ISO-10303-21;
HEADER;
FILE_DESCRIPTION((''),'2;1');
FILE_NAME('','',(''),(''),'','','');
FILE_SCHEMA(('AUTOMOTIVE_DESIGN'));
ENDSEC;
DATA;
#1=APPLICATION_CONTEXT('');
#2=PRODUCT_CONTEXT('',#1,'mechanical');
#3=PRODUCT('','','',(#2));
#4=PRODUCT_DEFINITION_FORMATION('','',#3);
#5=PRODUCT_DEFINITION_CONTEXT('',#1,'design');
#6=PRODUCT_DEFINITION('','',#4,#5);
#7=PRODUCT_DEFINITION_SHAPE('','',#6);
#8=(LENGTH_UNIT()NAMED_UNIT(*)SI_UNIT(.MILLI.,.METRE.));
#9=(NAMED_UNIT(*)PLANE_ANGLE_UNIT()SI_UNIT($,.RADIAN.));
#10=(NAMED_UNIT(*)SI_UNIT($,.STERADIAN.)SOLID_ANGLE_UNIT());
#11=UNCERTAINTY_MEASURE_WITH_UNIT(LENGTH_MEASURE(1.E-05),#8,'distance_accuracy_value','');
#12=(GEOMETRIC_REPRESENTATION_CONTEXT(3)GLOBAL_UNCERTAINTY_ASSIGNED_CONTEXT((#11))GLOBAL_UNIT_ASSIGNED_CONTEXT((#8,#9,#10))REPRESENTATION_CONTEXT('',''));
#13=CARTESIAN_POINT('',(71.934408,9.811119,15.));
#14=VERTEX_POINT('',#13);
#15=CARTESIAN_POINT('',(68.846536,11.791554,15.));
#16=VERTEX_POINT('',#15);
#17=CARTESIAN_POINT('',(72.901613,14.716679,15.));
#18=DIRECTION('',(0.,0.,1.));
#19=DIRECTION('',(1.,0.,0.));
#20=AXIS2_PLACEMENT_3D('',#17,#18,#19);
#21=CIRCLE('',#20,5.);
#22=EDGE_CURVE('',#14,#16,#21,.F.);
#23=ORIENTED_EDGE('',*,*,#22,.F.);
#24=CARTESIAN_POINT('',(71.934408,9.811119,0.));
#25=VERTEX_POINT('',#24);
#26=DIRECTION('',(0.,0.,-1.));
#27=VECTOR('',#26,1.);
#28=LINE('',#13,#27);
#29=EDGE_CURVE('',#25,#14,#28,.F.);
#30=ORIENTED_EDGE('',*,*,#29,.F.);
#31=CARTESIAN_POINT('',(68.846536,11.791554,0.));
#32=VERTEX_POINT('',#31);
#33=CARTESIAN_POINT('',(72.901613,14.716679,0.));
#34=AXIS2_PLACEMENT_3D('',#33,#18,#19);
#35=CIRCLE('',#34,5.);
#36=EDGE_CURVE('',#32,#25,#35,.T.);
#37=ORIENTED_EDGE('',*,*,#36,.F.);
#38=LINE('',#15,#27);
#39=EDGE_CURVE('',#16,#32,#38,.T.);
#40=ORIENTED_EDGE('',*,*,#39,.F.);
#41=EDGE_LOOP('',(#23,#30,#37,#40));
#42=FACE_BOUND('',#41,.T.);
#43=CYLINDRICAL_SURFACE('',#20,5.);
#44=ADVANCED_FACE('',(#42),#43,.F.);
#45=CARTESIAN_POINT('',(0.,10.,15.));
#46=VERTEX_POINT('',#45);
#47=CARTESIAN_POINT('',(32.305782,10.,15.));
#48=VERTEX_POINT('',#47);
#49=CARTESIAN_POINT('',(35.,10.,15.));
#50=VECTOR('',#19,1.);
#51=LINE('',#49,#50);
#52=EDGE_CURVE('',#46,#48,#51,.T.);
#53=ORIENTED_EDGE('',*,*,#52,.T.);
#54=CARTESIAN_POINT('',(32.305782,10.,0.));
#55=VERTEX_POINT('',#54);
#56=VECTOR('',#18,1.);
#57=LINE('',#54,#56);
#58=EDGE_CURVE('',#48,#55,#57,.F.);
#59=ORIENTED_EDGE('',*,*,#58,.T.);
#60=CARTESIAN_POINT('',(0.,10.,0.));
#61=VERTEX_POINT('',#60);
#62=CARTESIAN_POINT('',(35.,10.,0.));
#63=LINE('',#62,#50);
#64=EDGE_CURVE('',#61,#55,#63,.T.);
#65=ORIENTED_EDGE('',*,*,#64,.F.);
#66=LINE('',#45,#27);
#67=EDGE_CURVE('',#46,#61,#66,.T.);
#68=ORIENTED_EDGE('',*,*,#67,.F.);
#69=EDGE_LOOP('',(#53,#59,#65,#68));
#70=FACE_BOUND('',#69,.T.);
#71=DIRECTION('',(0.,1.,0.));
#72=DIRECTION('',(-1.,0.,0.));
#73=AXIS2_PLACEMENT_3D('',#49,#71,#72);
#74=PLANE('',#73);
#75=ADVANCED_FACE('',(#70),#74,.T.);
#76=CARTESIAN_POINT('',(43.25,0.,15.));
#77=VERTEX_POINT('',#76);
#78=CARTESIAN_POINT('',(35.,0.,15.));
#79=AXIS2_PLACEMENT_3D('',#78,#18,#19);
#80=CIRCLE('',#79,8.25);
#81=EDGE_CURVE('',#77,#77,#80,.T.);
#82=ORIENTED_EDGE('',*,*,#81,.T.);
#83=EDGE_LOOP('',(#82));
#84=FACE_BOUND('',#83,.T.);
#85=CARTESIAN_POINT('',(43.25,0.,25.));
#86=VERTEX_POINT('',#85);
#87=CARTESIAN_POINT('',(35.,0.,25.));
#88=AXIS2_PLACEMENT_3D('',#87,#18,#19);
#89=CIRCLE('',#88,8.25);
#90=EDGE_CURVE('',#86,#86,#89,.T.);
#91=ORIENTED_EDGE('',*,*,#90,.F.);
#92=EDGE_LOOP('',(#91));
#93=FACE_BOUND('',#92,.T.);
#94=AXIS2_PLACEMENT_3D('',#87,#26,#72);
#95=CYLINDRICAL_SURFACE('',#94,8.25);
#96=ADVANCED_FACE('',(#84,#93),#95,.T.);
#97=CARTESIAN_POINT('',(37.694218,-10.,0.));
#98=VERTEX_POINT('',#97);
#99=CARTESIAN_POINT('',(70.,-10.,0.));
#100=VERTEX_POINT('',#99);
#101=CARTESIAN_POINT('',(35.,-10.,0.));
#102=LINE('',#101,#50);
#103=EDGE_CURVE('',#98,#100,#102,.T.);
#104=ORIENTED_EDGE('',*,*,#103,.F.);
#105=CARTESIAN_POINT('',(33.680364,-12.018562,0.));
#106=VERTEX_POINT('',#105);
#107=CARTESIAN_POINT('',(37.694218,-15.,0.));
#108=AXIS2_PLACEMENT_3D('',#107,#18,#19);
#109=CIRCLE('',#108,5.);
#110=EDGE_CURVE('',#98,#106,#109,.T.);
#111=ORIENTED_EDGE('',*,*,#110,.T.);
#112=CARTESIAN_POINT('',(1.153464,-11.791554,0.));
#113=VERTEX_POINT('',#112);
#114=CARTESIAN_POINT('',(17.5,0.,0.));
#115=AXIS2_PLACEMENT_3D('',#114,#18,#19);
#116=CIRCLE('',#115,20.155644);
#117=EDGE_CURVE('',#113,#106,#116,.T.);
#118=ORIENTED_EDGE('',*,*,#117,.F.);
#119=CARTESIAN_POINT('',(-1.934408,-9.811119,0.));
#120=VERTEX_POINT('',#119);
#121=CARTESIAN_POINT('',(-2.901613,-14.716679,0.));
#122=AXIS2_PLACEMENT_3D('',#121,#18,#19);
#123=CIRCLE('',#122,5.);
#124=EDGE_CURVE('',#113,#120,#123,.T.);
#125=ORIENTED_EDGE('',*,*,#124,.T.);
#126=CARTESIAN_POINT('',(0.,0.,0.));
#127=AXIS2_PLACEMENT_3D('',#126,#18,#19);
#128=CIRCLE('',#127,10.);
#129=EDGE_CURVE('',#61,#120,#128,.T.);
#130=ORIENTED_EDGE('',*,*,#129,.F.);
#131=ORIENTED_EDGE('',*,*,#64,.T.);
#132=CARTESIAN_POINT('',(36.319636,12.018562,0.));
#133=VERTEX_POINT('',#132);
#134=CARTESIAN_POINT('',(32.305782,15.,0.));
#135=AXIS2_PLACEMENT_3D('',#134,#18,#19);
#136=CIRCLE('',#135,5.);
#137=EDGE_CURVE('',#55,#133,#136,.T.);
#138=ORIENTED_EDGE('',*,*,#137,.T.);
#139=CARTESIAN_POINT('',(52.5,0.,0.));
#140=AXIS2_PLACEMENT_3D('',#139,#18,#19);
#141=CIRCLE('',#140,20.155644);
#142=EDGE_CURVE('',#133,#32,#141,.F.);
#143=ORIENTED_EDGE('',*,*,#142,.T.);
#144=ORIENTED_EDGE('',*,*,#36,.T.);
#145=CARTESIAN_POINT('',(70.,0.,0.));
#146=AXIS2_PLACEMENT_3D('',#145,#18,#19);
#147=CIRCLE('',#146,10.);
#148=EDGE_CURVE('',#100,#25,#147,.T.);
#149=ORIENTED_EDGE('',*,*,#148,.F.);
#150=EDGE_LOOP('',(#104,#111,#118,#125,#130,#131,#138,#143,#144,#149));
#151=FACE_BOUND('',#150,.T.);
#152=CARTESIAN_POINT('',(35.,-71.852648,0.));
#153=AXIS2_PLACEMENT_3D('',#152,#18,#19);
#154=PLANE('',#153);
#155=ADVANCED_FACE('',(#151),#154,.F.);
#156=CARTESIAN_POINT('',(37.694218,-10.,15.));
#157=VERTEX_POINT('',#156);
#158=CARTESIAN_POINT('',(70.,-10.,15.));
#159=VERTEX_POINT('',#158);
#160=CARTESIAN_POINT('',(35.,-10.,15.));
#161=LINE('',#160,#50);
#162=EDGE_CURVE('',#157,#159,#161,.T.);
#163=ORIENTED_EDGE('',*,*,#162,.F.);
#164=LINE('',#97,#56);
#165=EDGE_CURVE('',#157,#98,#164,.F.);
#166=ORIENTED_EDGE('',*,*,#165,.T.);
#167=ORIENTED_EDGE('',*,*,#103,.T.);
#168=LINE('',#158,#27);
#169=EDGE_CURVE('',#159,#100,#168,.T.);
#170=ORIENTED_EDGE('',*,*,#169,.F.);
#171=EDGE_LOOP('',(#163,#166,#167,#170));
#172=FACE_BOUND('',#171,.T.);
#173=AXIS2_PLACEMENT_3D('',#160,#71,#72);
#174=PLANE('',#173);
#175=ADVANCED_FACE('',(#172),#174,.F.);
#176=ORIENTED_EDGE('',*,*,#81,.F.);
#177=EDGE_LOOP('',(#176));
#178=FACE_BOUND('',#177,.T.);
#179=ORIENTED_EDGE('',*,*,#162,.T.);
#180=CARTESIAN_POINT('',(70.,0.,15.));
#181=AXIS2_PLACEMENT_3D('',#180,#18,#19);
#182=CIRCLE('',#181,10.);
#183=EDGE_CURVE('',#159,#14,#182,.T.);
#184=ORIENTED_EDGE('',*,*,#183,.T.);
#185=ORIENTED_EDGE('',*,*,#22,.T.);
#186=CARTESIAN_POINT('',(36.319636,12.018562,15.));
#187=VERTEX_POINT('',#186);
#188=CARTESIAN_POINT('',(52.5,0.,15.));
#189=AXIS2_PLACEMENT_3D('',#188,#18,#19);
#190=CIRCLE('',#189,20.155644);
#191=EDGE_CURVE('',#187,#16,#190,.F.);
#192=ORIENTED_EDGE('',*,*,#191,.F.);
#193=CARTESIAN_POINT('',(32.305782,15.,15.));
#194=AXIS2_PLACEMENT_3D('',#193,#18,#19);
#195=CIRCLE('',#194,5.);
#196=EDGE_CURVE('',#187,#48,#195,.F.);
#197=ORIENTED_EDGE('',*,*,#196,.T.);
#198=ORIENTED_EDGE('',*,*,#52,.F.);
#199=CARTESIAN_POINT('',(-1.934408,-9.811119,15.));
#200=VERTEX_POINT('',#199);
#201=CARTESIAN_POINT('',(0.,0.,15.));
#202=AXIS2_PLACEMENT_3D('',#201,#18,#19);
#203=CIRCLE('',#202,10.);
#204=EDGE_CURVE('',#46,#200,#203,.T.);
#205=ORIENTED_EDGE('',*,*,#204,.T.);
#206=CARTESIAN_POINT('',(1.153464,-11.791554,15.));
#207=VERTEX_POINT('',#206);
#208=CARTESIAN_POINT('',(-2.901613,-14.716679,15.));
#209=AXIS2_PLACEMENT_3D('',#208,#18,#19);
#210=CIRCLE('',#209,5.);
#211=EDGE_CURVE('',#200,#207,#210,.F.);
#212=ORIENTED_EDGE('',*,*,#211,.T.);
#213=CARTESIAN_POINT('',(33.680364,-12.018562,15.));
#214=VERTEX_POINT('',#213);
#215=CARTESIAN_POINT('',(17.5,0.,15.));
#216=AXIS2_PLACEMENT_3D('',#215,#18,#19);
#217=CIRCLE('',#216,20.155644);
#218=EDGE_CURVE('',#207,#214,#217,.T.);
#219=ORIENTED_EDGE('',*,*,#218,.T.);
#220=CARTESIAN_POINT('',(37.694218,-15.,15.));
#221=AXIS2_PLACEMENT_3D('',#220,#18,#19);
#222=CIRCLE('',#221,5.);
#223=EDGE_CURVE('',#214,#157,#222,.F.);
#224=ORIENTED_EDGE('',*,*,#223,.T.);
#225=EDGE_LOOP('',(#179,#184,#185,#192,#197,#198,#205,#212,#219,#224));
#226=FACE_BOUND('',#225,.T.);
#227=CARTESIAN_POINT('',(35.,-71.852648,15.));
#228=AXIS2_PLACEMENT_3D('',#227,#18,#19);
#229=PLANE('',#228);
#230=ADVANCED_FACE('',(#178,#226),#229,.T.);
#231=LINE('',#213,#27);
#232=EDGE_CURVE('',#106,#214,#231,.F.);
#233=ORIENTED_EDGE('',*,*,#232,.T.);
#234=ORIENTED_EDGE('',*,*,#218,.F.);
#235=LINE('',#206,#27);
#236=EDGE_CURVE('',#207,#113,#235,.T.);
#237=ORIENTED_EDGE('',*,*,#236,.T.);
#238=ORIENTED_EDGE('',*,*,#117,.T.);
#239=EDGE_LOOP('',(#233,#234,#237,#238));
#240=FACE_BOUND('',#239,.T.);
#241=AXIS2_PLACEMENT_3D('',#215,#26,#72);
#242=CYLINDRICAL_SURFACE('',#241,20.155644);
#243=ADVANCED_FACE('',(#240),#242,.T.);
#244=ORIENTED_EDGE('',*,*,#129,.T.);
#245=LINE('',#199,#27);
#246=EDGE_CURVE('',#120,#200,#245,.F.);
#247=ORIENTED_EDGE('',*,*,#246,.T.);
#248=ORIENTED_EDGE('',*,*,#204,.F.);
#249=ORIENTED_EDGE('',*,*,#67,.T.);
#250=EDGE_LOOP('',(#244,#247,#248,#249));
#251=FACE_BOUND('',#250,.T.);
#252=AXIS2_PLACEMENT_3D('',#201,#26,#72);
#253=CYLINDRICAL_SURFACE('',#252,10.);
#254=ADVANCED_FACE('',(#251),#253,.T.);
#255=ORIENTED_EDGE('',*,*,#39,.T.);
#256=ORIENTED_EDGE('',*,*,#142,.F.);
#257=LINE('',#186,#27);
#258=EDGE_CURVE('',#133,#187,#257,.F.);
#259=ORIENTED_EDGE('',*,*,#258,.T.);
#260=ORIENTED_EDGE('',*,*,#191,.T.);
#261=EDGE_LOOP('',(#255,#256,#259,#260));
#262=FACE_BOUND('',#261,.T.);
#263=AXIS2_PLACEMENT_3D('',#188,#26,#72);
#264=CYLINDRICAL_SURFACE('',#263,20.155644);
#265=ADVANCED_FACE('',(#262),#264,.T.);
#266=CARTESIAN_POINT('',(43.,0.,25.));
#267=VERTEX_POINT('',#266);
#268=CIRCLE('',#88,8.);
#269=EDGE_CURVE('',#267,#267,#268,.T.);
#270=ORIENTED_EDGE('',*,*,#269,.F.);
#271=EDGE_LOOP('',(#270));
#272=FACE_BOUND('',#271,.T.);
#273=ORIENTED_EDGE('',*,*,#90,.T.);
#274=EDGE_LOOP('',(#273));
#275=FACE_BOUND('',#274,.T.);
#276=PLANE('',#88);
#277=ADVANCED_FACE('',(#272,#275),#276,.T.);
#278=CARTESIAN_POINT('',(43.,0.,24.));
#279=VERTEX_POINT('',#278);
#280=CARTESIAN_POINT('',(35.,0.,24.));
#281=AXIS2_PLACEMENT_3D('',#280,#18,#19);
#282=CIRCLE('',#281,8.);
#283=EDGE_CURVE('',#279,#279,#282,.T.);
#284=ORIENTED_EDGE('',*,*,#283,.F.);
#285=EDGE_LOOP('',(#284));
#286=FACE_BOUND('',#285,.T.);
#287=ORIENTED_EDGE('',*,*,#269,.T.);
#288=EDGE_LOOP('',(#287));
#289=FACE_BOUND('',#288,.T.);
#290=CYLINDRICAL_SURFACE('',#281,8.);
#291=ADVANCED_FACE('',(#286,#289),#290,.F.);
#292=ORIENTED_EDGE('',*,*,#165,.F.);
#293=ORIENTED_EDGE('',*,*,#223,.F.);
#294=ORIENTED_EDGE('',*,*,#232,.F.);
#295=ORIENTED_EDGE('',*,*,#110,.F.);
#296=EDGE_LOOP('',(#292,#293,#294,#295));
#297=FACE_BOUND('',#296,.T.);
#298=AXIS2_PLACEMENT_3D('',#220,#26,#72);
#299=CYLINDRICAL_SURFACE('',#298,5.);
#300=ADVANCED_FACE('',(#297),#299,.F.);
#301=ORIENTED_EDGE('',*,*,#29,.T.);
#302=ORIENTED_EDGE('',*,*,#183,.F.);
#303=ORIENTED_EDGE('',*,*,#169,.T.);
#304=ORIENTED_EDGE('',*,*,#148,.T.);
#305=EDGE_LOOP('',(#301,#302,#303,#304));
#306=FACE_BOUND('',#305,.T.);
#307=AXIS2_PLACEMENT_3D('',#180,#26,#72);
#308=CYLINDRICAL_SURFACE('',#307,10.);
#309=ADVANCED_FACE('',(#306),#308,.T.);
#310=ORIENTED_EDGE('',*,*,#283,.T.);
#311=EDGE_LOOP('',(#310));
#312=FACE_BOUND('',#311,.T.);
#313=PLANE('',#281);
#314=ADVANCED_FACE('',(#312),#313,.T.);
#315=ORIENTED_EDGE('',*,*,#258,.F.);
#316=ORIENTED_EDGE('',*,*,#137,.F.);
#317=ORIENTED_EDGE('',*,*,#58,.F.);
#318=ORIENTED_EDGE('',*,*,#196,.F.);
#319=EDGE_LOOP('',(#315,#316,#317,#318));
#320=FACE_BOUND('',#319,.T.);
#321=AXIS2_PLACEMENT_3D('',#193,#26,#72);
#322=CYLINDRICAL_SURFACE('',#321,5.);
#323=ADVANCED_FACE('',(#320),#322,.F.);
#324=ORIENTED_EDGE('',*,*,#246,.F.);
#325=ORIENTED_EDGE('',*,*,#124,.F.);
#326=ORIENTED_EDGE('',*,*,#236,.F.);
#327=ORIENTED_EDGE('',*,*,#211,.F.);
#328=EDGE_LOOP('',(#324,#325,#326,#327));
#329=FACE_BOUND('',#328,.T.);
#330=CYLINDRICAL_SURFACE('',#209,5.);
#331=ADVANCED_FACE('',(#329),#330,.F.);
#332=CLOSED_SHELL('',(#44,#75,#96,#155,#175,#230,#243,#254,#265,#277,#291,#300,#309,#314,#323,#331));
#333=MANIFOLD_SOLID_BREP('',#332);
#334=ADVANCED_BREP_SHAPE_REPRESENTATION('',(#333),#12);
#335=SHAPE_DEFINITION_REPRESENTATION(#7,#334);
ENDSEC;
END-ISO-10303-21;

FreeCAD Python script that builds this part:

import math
import FreeCAD as App
import Part
import Sketcher
from FreeCAD import Vector


def edges_at(feature, points):
    """Names of the edges that pass closest to the given points."""
    edges = feature.Shape.Edges
    near = lambda p: min(range(len(edges)), key=lambda i: edges[i].distToShape(Part.Vertex(*p))[0])
    return sorted({f"Edge{near(p) + 1}" for p in points})

doc = App.newDocument("Part")
body = doc.addObject("PartDesign::Body", "Body")

# Sketch on XY plane
sketch1 = body.newObject("Sketcher::SketchObject", "Sketch")
sketch1.AttachmentSupport = (doc.getObject("XY_Plane"), [""])
sketch1.MapMode = "FlatFace"
sketch1.addGeometry([
    Part.ArcOfCircle(Part.Circle(Vector(0, 0, 0), Vector(0, 0, 1), 10), math.radians(90), math.radians(270)),  # 0
    Part.ArcOfCircle(Part.Circle(Vector(17.5, 0, 0), Vector(0, 0, 1), 20.155644), math.radians(-150.255119), math.radians(-29.744881)),  # 1
    Part.LineSegment(Vector(35, -10, 0), Vector(70, -10, 0)),  # 2
    Part.ArcOfCircle(Part.Circle(Vector(70, 0, 0), Vector(0, 0, 1), 10), math.radians(-90), math.radians(90)),  # 3
    Part.ArcOfCircle(Part.Circle(Vector(52.5, 0, 0), Vector(0, 0, 1), 20.155644), math.radians(29.744881), math.radians(150.255119)),  # 4
    Part.LineSegment(Vector(35, 10, 0), Vector(0, 10, 0)),  # 5
], False)
sketch1.addConstraint([
    Sketcher.Constraint("Coincident", 0, 2, 1, 1),
    Sketcher.Constraint("Coincident", 1, 2, 2, 1),
    Sketcher.Constraint("Tangent", 2, 2, 3, 1),
    Sketcher.Constraint("Coincident", 3, 2, 4, 1),
    Sketcher.Constraint("Coincident", 4, 2, 5, 1),
    Sketcher.Constraint("Tangent", 5, 2, 0, 1),
    Sketcher.Constraint("Horizontal", 2),
    Sketcher.Constraint("Horizontal", 5),
    Sketcher.Constraint("Coincident", 0, 3, -1, 1),
    Sketcher.Constraint("Equal", 0, 3),
    Sketcher.Constraint("Equal", 1, 4),
    Sketcher.Constraint("Symmetric", 2, 2, 3, 2, -1),
    Sketcher.Constraint("PointOnObject", 1, 3, -1),
    Sketcher.Constraint("PointOnObject", 4, 3, -1),
    Sketcher.Constraint("PointOnObject", 0, 2, -2),
    Sketcher.Constraint("Vertical", 1, 2, 4, 2),
    Sketcher.Constraint("Radius", 0, 10.0),
    Sketcher.Constraint("DistanceX", 2, 1, 2, 2, 35.0),
])
pad1 = body.newObject("PartDesign::Pad", "Pad")
pad1.Profile = sketch1
pad1.Length = 15

# Sketch on XY plane
sketch2 = body.newObject("Sketcher::SketchObject", "Sketch001")
sketch2.AttachmentSupport = (doc.getObject("XY_Plane"), [""])
sketch2.MapMode = "FlatFace"
sketch2.AttachmentOffset = App.Placement(Vector(0, 0, 15), App.Rotation())
sketch2.addGeometry(Part.Circle(Vector(35, 0, 0), Vector(0, 0, 1), 8.25), False)
sketch2.addConstraint([
    Sketcher.Constraint("PointOnObject", 0, 3, -1),
    Sketcher.Constraint("Diameter", 0, 16.5),
    Sketcher.Constraint("DistanceX", -1, 1, 0, 3, 35.0),
])
pad2 = body.newObject("PartDesign::Pad", "Pad001")
pad2.Profile = sketch2
pad2.Length = 10

# Sketch on XY plane
sketch3 = body.newObject("Sketcher::SketchObject", "Sketch002")
sketch3.AttachmentSupport = (doc.getObject("XY_Plane"), [""])
sketch3.MapMode = "FlatFace"
sketch3.AttachmentOffset = App.Placement(Vector(0, 0, 25), App.Rotation())
sketch3.addGeometry(Part.Circle(Vector(35, 0, 0), Vector(0, 0, 1), 8), False)
sketch3.addConstraint([
    Sketcher.Constraint("PointOnObject", 0, 3, -1),
    Sketcher.Constraint("Diameter", 0, 16.0),
    Sketcher.Constraint("DistanceX", -1, 1, 0, 3, 35.0),
])
pocket1 = body.newObject("PartDesign::Pocket", "Pocket")
pocket1.Profile = sketch3
pocket1.Length = 1
doc.recompute()

fillet = body.newObject("PartDesign::Fillet", "Fillet")
fillet.Base = (pocket1, edges_at(pocket1, [
    (35, -10, 7.5),
    (0, -10, 7.5),
    (35, 10, 7.5),
    (70, 10, 7.5),
]))
fillet.Radius = 5

doc.recompute()
